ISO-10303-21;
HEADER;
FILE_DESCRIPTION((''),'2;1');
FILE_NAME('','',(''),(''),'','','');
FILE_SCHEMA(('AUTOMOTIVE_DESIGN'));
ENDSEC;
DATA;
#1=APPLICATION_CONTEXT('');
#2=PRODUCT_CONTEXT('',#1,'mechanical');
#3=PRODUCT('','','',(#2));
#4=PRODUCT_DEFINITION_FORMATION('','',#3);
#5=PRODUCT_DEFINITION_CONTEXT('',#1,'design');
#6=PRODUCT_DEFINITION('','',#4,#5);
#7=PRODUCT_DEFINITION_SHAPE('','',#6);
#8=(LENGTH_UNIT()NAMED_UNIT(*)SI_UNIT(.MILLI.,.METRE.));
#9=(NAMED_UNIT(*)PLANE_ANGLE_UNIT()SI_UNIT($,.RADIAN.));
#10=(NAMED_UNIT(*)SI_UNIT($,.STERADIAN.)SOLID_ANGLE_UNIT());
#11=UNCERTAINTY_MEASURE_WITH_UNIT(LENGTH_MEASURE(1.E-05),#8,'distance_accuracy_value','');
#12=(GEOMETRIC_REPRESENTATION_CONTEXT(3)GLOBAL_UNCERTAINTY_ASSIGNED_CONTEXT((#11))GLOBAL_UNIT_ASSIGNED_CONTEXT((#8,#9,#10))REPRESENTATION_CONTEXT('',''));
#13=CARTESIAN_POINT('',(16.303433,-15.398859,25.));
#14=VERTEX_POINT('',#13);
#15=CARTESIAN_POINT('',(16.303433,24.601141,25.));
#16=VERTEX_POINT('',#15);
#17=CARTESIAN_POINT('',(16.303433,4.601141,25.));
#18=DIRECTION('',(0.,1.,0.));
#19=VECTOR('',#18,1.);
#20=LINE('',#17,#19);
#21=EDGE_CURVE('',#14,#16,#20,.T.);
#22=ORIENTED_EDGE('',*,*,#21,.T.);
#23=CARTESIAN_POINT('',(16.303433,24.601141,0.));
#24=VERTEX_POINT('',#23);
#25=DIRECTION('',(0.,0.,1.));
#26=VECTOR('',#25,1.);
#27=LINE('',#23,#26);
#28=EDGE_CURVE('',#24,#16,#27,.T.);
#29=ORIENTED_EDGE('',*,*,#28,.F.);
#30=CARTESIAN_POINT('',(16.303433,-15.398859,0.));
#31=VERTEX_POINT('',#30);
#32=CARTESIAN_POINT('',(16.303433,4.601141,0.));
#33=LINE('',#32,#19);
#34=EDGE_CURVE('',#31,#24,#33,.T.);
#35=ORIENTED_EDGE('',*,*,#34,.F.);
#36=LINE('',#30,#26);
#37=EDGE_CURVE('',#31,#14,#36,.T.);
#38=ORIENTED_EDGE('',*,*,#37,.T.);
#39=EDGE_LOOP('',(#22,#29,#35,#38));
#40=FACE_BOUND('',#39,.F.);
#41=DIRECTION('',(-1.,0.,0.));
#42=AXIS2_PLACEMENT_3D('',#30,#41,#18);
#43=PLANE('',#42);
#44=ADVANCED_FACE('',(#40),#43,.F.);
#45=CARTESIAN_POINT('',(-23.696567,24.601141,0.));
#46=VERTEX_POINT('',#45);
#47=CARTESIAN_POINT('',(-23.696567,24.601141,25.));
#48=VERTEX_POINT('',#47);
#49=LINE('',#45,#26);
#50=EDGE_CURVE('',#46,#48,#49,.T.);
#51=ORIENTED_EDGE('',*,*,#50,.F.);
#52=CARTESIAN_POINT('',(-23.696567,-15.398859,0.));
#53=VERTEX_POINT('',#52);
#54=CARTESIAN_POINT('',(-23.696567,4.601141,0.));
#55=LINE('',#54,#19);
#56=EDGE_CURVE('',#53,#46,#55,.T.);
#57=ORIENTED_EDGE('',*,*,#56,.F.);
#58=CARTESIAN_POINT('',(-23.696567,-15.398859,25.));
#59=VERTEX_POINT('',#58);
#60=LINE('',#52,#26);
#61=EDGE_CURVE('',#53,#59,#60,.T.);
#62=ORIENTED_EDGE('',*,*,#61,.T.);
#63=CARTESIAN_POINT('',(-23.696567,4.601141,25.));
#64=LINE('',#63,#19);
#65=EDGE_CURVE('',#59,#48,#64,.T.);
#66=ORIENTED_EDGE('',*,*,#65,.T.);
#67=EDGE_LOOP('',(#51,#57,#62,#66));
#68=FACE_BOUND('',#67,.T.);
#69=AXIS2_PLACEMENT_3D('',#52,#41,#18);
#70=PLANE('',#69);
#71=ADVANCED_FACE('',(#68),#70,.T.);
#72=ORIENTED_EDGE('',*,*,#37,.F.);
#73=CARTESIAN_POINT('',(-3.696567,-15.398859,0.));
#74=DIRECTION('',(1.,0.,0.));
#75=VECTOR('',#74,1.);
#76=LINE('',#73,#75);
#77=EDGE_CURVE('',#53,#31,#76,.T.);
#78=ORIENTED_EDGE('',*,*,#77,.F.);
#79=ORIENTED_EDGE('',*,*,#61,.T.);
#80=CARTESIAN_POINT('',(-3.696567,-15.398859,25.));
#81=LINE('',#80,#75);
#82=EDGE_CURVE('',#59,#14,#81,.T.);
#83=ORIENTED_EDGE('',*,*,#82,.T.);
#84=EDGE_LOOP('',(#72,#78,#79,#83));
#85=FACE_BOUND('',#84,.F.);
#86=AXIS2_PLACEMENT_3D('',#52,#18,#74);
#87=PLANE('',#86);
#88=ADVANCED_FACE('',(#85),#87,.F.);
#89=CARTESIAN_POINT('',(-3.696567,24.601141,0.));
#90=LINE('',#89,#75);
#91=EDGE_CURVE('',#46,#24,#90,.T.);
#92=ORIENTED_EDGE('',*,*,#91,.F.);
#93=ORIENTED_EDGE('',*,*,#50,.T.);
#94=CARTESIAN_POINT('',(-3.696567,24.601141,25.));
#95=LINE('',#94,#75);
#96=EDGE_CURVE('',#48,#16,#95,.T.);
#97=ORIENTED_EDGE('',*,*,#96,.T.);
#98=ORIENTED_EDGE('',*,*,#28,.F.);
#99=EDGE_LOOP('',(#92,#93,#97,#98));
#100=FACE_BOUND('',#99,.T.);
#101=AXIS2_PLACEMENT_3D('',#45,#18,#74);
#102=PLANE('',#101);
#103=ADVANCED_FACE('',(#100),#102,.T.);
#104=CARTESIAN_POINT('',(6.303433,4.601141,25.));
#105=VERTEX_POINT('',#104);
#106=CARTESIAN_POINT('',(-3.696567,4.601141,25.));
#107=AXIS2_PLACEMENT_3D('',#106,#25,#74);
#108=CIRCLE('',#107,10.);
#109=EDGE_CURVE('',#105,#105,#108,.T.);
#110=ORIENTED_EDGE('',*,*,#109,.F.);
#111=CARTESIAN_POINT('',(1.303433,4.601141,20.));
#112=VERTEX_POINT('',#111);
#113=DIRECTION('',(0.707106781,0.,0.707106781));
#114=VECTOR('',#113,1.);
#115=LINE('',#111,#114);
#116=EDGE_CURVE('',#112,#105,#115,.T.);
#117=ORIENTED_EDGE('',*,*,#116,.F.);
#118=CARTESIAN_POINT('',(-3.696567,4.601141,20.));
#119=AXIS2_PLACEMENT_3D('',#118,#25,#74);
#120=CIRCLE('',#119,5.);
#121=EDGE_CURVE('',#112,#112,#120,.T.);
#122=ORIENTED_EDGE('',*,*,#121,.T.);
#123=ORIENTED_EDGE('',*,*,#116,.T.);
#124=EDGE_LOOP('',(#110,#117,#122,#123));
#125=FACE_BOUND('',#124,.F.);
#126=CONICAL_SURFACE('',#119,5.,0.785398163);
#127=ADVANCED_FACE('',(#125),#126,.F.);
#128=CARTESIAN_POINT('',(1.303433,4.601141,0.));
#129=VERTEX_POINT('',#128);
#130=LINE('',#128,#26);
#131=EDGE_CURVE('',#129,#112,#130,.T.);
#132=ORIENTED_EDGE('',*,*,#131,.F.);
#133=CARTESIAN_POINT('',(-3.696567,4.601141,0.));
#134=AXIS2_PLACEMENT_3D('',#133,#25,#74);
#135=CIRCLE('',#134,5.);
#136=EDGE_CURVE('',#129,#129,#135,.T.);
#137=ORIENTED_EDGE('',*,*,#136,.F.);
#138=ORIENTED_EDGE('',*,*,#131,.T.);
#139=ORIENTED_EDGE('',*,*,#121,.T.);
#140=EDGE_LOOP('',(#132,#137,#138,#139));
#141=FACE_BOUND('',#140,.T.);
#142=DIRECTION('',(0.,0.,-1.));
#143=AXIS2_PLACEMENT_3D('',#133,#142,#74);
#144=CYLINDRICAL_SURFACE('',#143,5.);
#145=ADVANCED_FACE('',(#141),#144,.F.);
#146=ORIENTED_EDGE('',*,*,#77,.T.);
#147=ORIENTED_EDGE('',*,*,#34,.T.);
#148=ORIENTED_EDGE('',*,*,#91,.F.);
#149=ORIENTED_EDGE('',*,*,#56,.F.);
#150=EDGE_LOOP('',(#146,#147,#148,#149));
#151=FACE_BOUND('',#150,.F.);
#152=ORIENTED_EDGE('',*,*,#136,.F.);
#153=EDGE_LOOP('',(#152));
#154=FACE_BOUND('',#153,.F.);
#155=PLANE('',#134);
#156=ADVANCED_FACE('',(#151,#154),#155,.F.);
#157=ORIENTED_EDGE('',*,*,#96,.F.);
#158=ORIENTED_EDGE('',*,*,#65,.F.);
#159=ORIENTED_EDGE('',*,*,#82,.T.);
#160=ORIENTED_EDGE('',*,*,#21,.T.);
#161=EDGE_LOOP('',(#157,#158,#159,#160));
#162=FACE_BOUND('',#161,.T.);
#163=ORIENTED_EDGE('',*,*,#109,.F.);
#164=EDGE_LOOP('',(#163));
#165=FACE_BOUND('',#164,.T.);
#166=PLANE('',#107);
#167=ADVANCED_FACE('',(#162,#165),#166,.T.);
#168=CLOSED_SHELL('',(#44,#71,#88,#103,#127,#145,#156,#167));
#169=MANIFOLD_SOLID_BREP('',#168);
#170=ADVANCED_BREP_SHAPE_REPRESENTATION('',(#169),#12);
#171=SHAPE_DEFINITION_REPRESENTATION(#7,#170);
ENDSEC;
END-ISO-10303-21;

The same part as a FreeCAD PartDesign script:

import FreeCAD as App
import Part
import Sketcher

V = App.Vector


def edges_at(feature, points):
    """Names of the edges that pass closest to the given points."""
    edges = feature.Shape.Edges
    near = lambda p: min(range(len(edges)), key=lambda i: edges[i].distToShape(Part.Vertex(*p))[0])
    return sorted({f"Edge{near(p) + 1}" for p in points})

doc = App.newDocument("Part")
params = doc.addObject("Spreadsheet::Sheet", "Params")
for row, (alias, value) in enumerate([
    ("sketch1_diameter", "10 mm"),
    ("sketch1_width", "40 mm"),
    ("pad1_length", "25 mm"),
    ("chamfer_size", "5 mm"),
], start=1):
    params.set(f"A{row}", alias)
    params.set(f"B{row}", "=" + value)
    params.setAlias(f"B{row}", alias)

body = doc.addObject("PartDesign::Body", "Body")

sketch1 = doc.addObject("Sketcher::SketchObject", "Sketch")
body.addObject(sketch1)
sketch1.AttachmentSupport = (doc.XY_Plane, [""])
sketch1.MapMode = "FlatFace"
sketch1.addGeometry([
    Part.LineSegment(V(-24, 25, 0), V(-24, -15, 0)),
    Part.LineSegment(V(-24, -15, 0), V(16, -15, 0)),
    Part.LineSegment(V(16, -15, 0), V(16, 25, 0)),
    Part.LineSegment(V(16, 25, 0), V(-24, 25, 0)),
    Part.Circle(V(-4, 5, 0), V(0, 0, 1), 5),
], False)
sketch1.addConstraint([
    Sketcher.Constraint("Coincident", 0, 2, 1, 1),
    Sketcher.Constraint("Coincident", 1, 2, 2, 1),
    Sketcher.Constraint("Coincident", 2, 2, 3, 1),
    Sketcher.Constraint("Coincident", 3, 2, 0, 1),
    Sketcher.Constraint("Vertical", 0),
    Sketcher.Constraint("Horizontal", 1),
    Sketcher.Constraint("Vertical", 2),
    Sketcher.Constraint("Horizontal", 3),
    Sketcher.Constraint("Equal", 3, 0),
    Sketcher.Constraint("Diameter", 4, 10.0),
    Sketcher.Constraint("DistanceX", 1, 1, 1, 2, 40.0),
    Sketcher.Constraint("DistanceX", 0, 2, 4, 3, 20.0),
    Sketcher.Constraint("DistanceY", 0, 2, 4, 3, 20.0),
    Sketcher.Constraint("DistanceY", -1, 1, 4, 3, 4.601141),
    Sketcher.Constraint("DistanceX", 4, 3, -1, 1, 3.696567),
])
sketch1.setExpression("Constraints[9]", "Params.sketch1_diameter")
sketch1.setExpression("Constraints[10]", "Params.sketch1_width")
pad1 = doc.addObject("PartDesign::Pad", "Pad")
body.addObject(pad1)
pad1.Profile = sketch1
pad1.setExpression("Length", "Params.pad1_length")
doc.recompute()

chamfer = doc.addObject("PartDesign::Chamfer", "Chamfer")
body.addObject(chamfer)
chamfer.Base = (pad1, edges_at(pad1, [(-8.697, 4.601, 25)]))
chamfer.setExpression("Size", "Params.chamfer_size")

doc.recompute()
